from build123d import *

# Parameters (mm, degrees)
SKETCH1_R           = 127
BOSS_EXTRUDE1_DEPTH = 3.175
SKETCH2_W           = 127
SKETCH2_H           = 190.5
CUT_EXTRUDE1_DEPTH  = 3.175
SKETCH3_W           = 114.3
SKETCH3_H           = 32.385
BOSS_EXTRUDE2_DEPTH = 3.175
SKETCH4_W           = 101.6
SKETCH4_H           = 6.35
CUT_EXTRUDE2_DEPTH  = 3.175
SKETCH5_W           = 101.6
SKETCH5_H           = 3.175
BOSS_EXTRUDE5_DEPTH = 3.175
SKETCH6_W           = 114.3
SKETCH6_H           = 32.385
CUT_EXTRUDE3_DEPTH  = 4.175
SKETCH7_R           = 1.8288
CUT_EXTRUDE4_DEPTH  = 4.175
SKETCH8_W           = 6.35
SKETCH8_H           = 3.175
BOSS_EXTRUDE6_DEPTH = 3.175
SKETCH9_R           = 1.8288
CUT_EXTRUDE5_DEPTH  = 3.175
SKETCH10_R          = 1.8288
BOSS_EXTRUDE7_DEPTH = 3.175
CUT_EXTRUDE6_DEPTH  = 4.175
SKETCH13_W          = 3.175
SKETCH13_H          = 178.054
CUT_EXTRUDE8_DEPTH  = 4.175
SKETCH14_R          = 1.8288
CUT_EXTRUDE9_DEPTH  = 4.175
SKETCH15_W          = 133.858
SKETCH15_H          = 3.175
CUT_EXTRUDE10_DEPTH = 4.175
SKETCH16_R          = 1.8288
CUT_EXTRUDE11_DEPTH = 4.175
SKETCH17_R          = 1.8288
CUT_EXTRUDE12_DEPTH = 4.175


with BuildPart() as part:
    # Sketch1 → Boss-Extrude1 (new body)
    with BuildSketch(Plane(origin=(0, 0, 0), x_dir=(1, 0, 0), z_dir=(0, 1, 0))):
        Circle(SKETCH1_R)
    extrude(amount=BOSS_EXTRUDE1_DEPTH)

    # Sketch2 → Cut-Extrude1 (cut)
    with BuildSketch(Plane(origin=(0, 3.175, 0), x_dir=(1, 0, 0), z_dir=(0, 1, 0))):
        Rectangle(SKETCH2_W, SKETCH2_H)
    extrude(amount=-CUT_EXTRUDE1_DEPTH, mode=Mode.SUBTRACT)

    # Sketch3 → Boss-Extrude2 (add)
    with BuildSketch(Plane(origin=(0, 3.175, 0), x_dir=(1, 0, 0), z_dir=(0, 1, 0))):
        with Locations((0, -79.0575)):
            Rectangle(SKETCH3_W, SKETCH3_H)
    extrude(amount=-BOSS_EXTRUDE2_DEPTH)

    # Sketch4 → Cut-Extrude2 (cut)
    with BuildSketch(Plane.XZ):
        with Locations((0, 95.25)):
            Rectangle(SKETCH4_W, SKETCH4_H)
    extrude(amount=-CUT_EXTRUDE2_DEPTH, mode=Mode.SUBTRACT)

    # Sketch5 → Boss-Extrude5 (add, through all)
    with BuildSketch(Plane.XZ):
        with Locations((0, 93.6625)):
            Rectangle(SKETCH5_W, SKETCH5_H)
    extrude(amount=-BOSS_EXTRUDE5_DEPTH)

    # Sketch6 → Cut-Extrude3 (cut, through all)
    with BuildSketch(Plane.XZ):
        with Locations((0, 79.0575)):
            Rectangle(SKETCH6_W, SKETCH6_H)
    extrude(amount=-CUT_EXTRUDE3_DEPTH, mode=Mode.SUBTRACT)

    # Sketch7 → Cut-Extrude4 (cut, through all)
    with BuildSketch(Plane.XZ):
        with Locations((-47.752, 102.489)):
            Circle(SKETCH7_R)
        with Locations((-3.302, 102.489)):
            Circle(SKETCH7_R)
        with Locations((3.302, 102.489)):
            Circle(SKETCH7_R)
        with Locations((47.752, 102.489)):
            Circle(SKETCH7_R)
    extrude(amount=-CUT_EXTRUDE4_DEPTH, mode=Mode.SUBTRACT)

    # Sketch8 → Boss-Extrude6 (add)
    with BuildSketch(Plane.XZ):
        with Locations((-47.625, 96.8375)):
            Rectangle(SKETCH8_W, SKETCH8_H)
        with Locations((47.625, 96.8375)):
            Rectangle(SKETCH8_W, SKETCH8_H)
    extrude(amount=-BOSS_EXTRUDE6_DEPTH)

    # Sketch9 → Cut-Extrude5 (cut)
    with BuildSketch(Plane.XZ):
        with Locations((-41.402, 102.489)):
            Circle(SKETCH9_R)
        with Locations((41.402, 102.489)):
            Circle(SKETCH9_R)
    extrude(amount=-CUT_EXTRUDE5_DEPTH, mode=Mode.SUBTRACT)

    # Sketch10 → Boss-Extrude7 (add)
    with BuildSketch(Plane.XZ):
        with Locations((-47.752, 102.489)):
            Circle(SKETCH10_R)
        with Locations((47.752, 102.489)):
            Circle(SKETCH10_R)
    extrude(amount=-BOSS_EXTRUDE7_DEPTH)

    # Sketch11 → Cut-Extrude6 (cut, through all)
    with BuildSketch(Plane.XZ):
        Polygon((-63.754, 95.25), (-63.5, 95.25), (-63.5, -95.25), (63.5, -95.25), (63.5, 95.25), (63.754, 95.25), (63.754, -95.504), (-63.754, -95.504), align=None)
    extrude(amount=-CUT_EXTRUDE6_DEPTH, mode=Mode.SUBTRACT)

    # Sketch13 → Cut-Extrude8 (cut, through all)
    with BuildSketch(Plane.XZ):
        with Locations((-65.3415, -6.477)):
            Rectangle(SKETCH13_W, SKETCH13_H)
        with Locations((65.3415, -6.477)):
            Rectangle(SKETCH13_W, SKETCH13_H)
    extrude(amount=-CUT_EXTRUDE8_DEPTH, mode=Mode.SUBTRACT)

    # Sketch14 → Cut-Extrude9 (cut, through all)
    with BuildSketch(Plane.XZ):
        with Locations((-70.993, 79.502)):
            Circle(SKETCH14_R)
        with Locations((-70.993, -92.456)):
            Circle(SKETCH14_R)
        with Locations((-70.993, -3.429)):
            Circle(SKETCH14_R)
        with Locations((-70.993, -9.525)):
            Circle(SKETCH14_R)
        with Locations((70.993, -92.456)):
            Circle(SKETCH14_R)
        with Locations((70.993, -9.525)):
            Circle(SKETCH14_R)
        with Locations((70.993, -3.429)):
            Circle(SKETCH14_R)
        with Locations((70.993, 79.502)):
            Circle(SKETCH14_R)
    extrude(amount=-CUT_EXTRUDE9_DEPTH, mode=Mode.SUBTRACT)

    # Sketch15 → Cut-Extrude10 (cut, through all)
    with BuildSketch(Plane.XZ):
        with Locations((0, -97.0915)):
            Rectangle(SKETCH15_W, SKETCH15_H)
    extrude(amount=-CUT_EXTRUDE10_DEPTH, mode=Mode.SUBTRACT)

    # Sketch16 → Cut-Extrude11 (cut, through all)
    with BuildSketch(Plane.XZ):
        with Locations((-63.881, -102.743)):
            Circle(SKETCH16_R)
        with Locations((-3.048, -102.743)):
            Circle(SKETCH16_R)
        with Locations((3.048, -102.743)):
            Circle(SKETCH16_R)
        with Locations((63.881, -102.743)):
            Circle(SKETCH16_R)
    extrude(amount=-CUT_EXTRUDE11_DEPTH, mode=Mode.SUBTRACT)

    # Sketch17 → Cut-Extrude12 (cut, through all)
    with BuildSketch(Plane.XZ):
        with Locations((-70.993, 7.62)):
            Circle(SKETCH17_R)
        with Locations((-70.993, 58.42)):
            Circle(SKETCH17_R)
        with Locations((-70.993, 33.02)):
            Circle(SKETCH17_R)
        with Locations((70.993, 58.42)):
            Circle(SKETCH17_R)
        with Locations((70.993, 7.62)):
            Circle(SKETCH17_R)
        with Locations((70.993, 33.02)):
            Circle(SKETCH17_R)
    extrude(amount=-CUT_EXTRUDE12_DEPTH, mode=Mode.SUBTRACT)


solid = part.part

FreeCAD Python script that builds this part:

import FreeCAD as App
import Part
import Sketcher
Q = App.Units.Quantity


def add_polygon(sketch, points):
    """Adds a closed chain of lines whose ends are joined by coincident constraints."""
    first, n = sketch.GeometryCount, len(points)
    for a, b in zip(points, points[1:] + points[:1]):
        sketch.addGeometry(Part.LineSegment(App.Vector(*a, 0), App.Vector(*b, 0)), False)
    for i in range(n):
        sketch.addConstraint(Sketcher.Constraint("Coincident", first + i, 2, first + (i + 1) % n, 1))

doc = App.newDocument("Part")
params = doc.addObject("Spreadsheet::Sheet", "Params")
for row, (alias, value) in enumerate([
    ("sketch1_diameter", "10 in"),
    ("pad1_length", "0.125 in"),
    ("sketch2_width", "5 in"),
    ("sketch2_height", "7.5 in"),
    ("pocket1_length", "0.125 in"),
    ("sketch3_width", "4.5 in"),
    ("sketch3_height", "1.275 in"),
    ("pad2_length", "0.125 in"),
    ("sketch4_width", "4 in"),
    ("sketch4_height", "0.25 in"),
    ("pocket2_length", "0.125 in"),
    ("sketch5_width", "4 in"),
    ("sketch5_height", "0.125 in"),
    ("pad3_length", "0.125 in"),
    ("sketch6_width", "4.5 in"),
    ("sketch6_height", "1.275 in"),
    ("sketch7_diameter", "0.144 in"),
    ("sketch8_width", "0.25 in"),
    ("sketch8_height", "0.125 in"),
    ("pad4_length", "0.125 in"),
    ("sketch9_diameter", "0.144 in"),
    ("pocket5_length", "0.125 in"),
    ("sketch10_diameter", "0.144 in"),
    ("pad5_length", "0.125 in"),
    ("sketch11_width", "5 in"),
    ("sketch11_height", "7.5 in"),
    ("sketch11_width2", "0.01 in"),
    ("sketch11_height2", "7.51 in"),
    ("sketch12_height", "7.01 in"),
    ("sketch12_width", "0.125 in"),
    ("sketch13_diameter", "0.144 in"),
    ("sketch14_width", "5.27 in"),
    ("sketch14_height", "0.125 in"),
    ("sketch15_diameter", "0.144 in"),
    ("sketch16_diameter", "0.144 in"),
], start=1):
    params.set(f"A{row}", alias)
    params.set(f"B{row}", "=" + value)
    params.setAlias(f"B{row}", alias)

body = doc.addObject("PartDesign::Body", "Body")

# Sketch on XZ plane
sketch1 = doc.addObject("Sketcher::SketchObject", "Sketch")
body.addObject(sketch1)
sketch1.AttachmentSupport = (doc.XZ_Plane, [""])
sketch1.MapMode = "FlatFace"
sketch1.addGeometry(Part.Circle(App.Vector(0, 0, 0), App.Vector(0, 0, 1), 127), False)
sketch1.addConstraint(Sketcher.Constraint("Coincident", 0, 3, -1, 1))
sketch1.addConstraint(Sketcher.Constraint("Diameter", 0, Q("10 in")))
sketch1.setExpression("Constraints[1]", "Params.sketch1_diameter")
pad1 = doc.addObject("PartDesign::Pad", "Pad")
body.addObject(pad1)
pad1.Profile = sketch1
pad1.setExpression("Length", "Params.pad1_length")
pad1.Reversed = True

# Sketch on XZ plane
sketch2 = doc.addObject("Sketcher::SketchObject", "Sketch001")
body.addObject(sketch2)
sketch2.AttachmentSupport = (doc.XZ_Plane, [""])
sketch2.MapMode = "FlatFace"
sketch2.AttachmentOffset = App.Placement(App.Vector(0, 0, -0.125 * 25.4), App.Rotation())
add_polygon(sketch2, [(-64, -95), (-64, 95), (64, 95), (64, -95)])  # lines 0-3
sketch2.addConstraint(Sketcher.Constraint("Vertical", 0))
sketch2.addConstraint(Sketcher.Constraint("Horizontal", 1))
sketch2.addConstraint(Sketcher.Constraint("Vertical", 2))
sketch2.addConstraint(Sketcher.Constraint("Horizontal", 3))
sketch2.addConstraint(Sketcher.Constraint("Symmetric", 0, 2, 2, 2, -1, 1))
sketch2.addConstraint(Sketcher.Constraint("DistanceX", 1, 1, 1, 2, Q("5 in")))
sketch2.addConstraint(Sketcher.Constraint("DistanceY", 0, 1, 0, 2, Q("7.5 in")))
sketch2.setExpression("Constraints[9]", "Params.sketch2_width")
sketch2.setExpression("Constraints[10]", "Params.sketch2_height")
pocket1 = doc.addObject("PartDesign::Pocket", "Pocket")
body.addObject(pocket1)
pocket1.Profile = sketch2
pocket1.setExpression("Length", "Params.pocket1_length")
pocket1.Reversed = True

# Sketch on XZ plane
sketch3 = doc.addObject("Sketcher::SketchObject", "Sketch002")
body.addObject(sketch3)
sketch3.AttachmentSupport = (doc.XZ_Plane, [""])
sketch3.MapMode = "FlatFace"
sketch3.AttachmentOffset = App.Placement(App.Vector(0, 0, -0.125 * 25.4), App.Rotation())
add_polygon(sketch3, [(-57, 63), (-57, 95), (57, 95), (57, 63)])  # lines 0-3
sketch3.addConstraint(Sketcher.Constraint("Vertical", 0))
sketch3.addConstraint(Sketcher.Constraint("Horizontal", 1))
sketch3.addConstraint(Sketcher.Constraint("Vertical", 2))
sketch3.addConstraint(Sketcher.Constraint("Horizontal", 3))
sketch3.addConstraint(Sketcher.Constraint("DistanceX", 1, 1, 1, 2, Q("4.5 in")))
sketch3.addConstraint(Sketcher.Constraint("DistanceY", 0, 1, 0, 2, Q("1.275 in")))
sketch3.addConstraint(Sketcher.Constraint("DistanceX", 0, 2, -1, 1, Q("2.25 in")))
sketch3.addConstraint(Sketcher.Constraint("DistanceY", -1, 1, 0, 2, Q("3.75 in")))
sketch3.setExpression("Constraints[8]", "Params.sketch3_width")
sketch3.setExpression("Constraints[9]", "Params.sketch3_height")
pad2 = doc.addObject("PartDesign::Pad", "Pad001")
body.addObject(pad2)
pad2.Profile = sketch3
pad2.setExpression("Length", "Params.pad2_length")

# Sketch on XZ plane
sketch4 = doc.addObject("Sketcher::SketchObject", "Sketch003")
body.addObject(sketch4)
sketch4.AttachmentSupport = (doc.XZ_Plane, [""])
sketch4.MapMode = "FlatFace"
add_polygon(sketch4, [(-51, 98), (-51, 92), (51, 92), (51, 98)])  # lines 0-3
sketch4.addConstraint(Sketcher.Constraint("Vertical", 0))
sketch4.addConstraint(Sketcher.Constraint("Horizontal", 1))
sketch4.addConstraint(Sketcher.Constraint("Vertical", 2))
sketch4.addConstraint(Sketcher.Constraint("Horizontal", 3))
sketch4.addConstraint(Sketcher.Constraint("DistanceX", 1, 1, 1, 2, Q("4 in")))
sketch4.addConstraint(Sketcher.Constraint("DistanceX", 0, 2, -1, 1, Q("2 in")))
sketch4.addConstraint(Sketcher.Constraint("DistanceY", 0, 2, 0, 1, Q("0.25 in")))
sketch4.addConstraint(Sketcher.Constraint("DistanceY", -1, 1, 0, 2, Q("3.625 in")))
sketch4.setExpression("Constraints[8]", "Params.sketch4_width")
sketch4.setExpression("Constraints[10]", "Params.sketch4_height")
pocket2 = doc.addObject("PartDesign::Pocket", "Pocket001")
body.addObject(pocket2)
pocket2.Profile = sketch4
pocket2.setExpression("Length", "Params.pocket2_length")

# Sketch on XZ plane
sketch5 = doc.addObject("Sketcher::SketchObject", "Sketch004")
body.addObject(sketch5)
sketch5.AttachmentSupport = (doc.XZ_Plane, [""])
sketch5.MapMode = "FlatFace"
add_polygon(sketch5, [(-50.8, 95.2), (-50.8, 92.1), (50.8, 92.1), (50.8, 95.2)])  # lines 0-3
sketch5.addConstraint(Sketcher.Constraint("Vertical", 0))
sketch5.addConstraint(Sketcher.Constraint("Horizontal", 1))
sketch5.addConstraint(Sketcher.Constraint("Vertical", 2))
sketch5.addConstraint(Sketcher.Constraint("Horizontal", 3))
sketch5.addConstraint(Sketcher.Constraint("DistanceX", 1, 1, 1, 2, Q("4 in")))
sketch5.addConstraint(Sketcher.Constraint("DistanceX", 0, 2, -1, 1, Q("2 in")))
sketch5.addConstraint(Sketcher.Constraint("DistanceY", 0, 2, 0, 1, Q("0.125 in")))
sketch5.addConstraint(Sketcher.Constraint("DistanceY", -1, 1, 2, 2, Q("3.75 in")))
sketch5.setExpression("Constraints[8]", "Params.sketch5_width")
sketch5.setExpression("Constraints[10]", "Params.sketch5_height")
pad3 = doc.addObject("PartDesign::Pad", "Pad002")
body.addObject(pad3)
pad3.Profile = sketch5
pad3.setExpression("Length", "Params.pad3_length")
pad3.Reversed = True

# Sketch on XZ plane
sketch6 = doc.addObject("Sketcher::SketchObject", "Sketch005")
body.addObject(sketch6)
sketch6.AttachmentSupport = (doc.XZ_Plane, [""])
sketch6.MapMode = "FlatFace"
add_polygon(sketch6, [(-57, 95), (-57, 63), (57, 63), (57, 95)])  # lines 0-3
sketch6.addConstraint(Sketcher.Constraint("Vertical", 0))
sketch6.addConstraint(Sketcher.Constraint("Horizontal", 1))
sketch6.addConstraint(Sketcher.Constraint("Vertical", 2))
sketch6.addConstraint(Sketcher.Constraint("Horizontal", 3))
sketch6.addConstraint(Sketcher.Constraint("DistanceX", 1, 1, 1, 2, Q("4.5 in")))
sketch6.addConstraint(Sketcher.Constraint("DistanceY", 0, 2, 0, 1, Q("1.275 in")))
sketch6.addConstraint(Sketcher.Constraint("DistanceX", 0, 2, -1, 1, Q("2.25 in")))
sketch6.addConstraint(Sketcher.Constraint("DistanceY", -1, 1, 2, 2, Q("3.75 in")))
sketch6.setExpression("Constraints[8]", "Params.sketch6_width")
sketch6.setExpression("Constraints[9]", "Params.sketch6_height")
pocket3 = doc.addObject("PartDesign::Pocket", "Pocket002")
body.addObject(pocket3)
pocket3.Profile = sketch6
pocket3.Type = "ThroughAll"

# Sketch on XZ plane
sketch7 = doc.addObject("Sketcher::SketchObject", "Sketch006")
body.addObject(sketch7)
sketch7.AttachmentSupport = (doc.XZ_Plane, [""])
sketch7.MapMode = "FlatFace"
sketch7.addGeometry(Part.Circle(App.Vector(-47.8, 102.5, 0), App.Vector(0, 0, 1), 1.8), False)
sketch7.addGeometry(Part.Circle(App.Vector(-3.3, 102.5, 0), App.Vector(0, 0, 1), 1.8), False)
sketch7.addGeometry(Part.Circle(App.Vector(3.3, 102.5, 0), App.Vector(0, 0, 1), 1.8), False)
sketch7.addGeometry(Part.Circle(App.Vector(47.8, 102.5, 0), App.Vector(0, 0, 1), 1.8), False)
sketch7.addConstraint(Sketcher.Constraint("Equal", 0, 1))
sketch7.addConstraint(Sketcher.Constraint("Equal", 1, 2))
sketch7.addConstraint(Sketcher.Constraint("Equal", 2, 3))
sketch7.addConstraint(Sketcher.Constraint("Symmetric", 1, 3, 2, 3, -2))
sketch7.addConstraint(Sketcher.Constraint("Symmetric", 0, 3, 3, 3, -2))
sketch7.addConstraint(Sketcher.Constraint("Horizontal", 0, 3, 1, 3))
sketch7.addConstraint(Sketcher.Constraint("Diameter", 0, Q("0.144 in")))
sketch7.addConstraint(Sketcher.Constraint("DistanceX", 0, 3, -1, 1, Q("1.88 in")))
sketch7.addConstraint(Sketcher.Constraint("DistanceX", 1, 3, -1, 1, Q("0.13 in")))
sketch7.addConstraint(Sketcher.Constraint("DistanceY", -1, 1, 0, 3, Q("4.035 in")))
sketch7.setExpression("Constraints[6]", "Params.sketch7_diameter")
pocket4 = doc.addObject("PartDesign::Pocket", "Pocket003")
body.addObject(pocket4)
pocket4.Profile = sketch7
pocket4.Type = "ThroughAll"

# Sketch on XZ plane
sketch8 = doc.addObject("Sketcher::SketchObject", "Sketch007")
body.addObject(sketch8)
sketch8.AttachmentSupport = (doc.XZ_Plane, [""])
sketch8.MapMode = "FlatFace"
add_polygon(sketch8, [(-50.8, 98.4), (-50.8, 95.2), (-44.5, 95.2), (-44.5, 98.4)])  # lines 0-3
add_polygon(sketch8, [(44.5, 98.4), (44.5, 95.2), (50.8, 95.2), (50.8, 98.4)])  # lines 4-7
sketch8.addConstraint(Sketcher.Constraint("Vertical", 0))
sketch8.addConstraint(Sketcher.Constraint("Horizontal", 1))
sketch8.addConstraint(Sketcher.Constraint("Vertical", 2))
sketch8.addConstraint(Sketcher.Constraint("Horizontal", 3))
sketch8.addConstraint(Sketcher.Constraint("Vertical", 4))
sketch8.addConstraint(Sketcher.Constraint("Horizontal", 5))
sketch8.addConstraint(Sketcher.Constraint("Vertical", 6))
sketch8.addConstraint(Sketcher.Constraint("Horizontal", 7))
sketch8.addConstraint(Sketcher.Constraint("Symmetric", 1, 2, 4, 2, -2))
sketch8.addConstraint(Sketcher.Constraint("Symmetric", 3, 2, 6, 2, -2))
sketch8.addConstraint(Sketcher.Constraint("DistanceX", 0, 2, -1, 1, Q("2 in")))
sketch8.addConstraint(Sketcher.Constraint("DistanceX", 1, 1, 1, 2, Q("0.25 in")))
sketch8.addConstraint(Sketcher.Constraint("DistanceY", 0, 2, 0, 1, Q("0.125 in")))
sketch8.addConstraint(Sketcher.Constraint("DistanceY", -1, 1, 0, 2, Q("3.75 in")))
sketch8.setExpression("Constraints[19]", "Params.sketch8_width")
sketch8.setExpression("Constraints[20]", "Params.sketch8_height")
pad4 = doc.addObject("PartDesign::Pad", "Pad003")
body.addObject(pad4)
pad4.Profile = sketch8
pad4.setExpression("Length", "Params.pad4_length")
pad4.Reversed = True

# Sketch on XZ plane
sketch9 = doc.addObject("Sketcher::SketchObject", "Sketch008")
body.addObject(sketch9)
sketch9.AttachmentSupport = (doc.XZ_Plane, [""])
sketch9.MapMode = "FlatFace"
sketch9.addGeometry(Part.Circle(App.Vector(-41.4, 102.5, 0), App.Vector(0, 0, 1), 1.8), False)
sketch9.addGeometry(Part.Circle(App.Vector(41.4, 102.5, 0), App.Vector(0, 0, 1), 1.8), False)
sketch9.addConstraint(Sketcher.Constraint("Equal", 0, 1))
sketch9.addConstraint(Sketcher.Constraint("Symmetric", 0, 3, 1, 3, -2))
sketch9.addConstraint(Sketcher.Constraint("Diameter", 0, Q("0.144 in")))
sketch9.addConstraint(Sketcher.Constraint("DistanceX", 0, 3, -1, 1, Q("1.63 in")))
sketch9.addConstraint(Sketcher.Constraint("DistanceY", -1, 1, 0, 3, Q("4.035 in")))
sketch9.setExpression("Constraints[2]", "Params.sketch9_diameter")
pocket5 = doc.addObject("PartDesign::Pocket", "Pocket004")
body.addObject(pocket5)
pocket5.Profile = sketch9
pocket5.setExpression("Length", "Params.pocket5_length")

# Sketch on XZ plane
sketch10 = doc.addObject("Sketcher::SketchObject", "Sketch009")
body.addObject(sketch10)
sketch10.AttachmentSupport = (doc.XZ_Plane, [""])
sketch10.MapMode = "FlatFace"
sketch10.addGeometry(Part.Circle(App.Vector(-47.8, 102.5, 0), App.Vector(0, 0, 1), 1.8), False)
sketch10.addGeometry(Part.Circle(App.Vector(47.8, 102.5, 0), App.Vector(0, 0, 1), 1.8), False)
sketch10.addConstraint(Sketcher.Constraint("Equal", 0, 1))
sketch10.addConstraint(Sketcher.Constraint("Symmetric", 0, 3, 1, 3, -2))
sketch10.addConstraint(Sketcher.Constraint("Diameter", 0, Q("0.144 in")))
sketch10.addConstraint(Sketcher.Constraint("DistanceX", 0, 3, -1, 1, Q("1.88 in")))
sketch10.addConstraint(Sketcher.Constraint("DistanceY", -1, 1, 0, 3, Q("4.035 in")))
sketch10.setExpression("Constraints[2]", "Params.sketch10_diameter")
pad5 = doc.addObject("PartDesign::Pad", "Pad004")
body.addObject(pad5)
pad5.Profile = sketch10
pad5.setExpression("Length", "Params.pad5_length")
pad5.Reversed = True

# Sketch on XZ plane
sketch11 = doc.addObject("Sketcher::SketchObject", "Sketch010")
body.addObject(sketch11)
sketch11.AttachmentSupport = (doc.XZ_Plane, [""])
sketch11.MapMode = "FlatFace"
add_polygon(sketch11, [(-63.5, 95.25), (-63.75, 95.25), (-63.75, -95.5), (63.75, -95.5), (63.75, 95.25), (63.5, 95.25), (63.5, -95.25), (-63.5, -95.25)])  # lines 0-7
sketch11.addConstraint(Sketcher.Constraint("Horizontal", 0))
sketch11.addConstraint(Sketcher.Constraint("Vertical", 1))
sketch11.addConstraint(Sketcher.Constraint("Horizontal", 2))
sketch11.addConstraint(Sketcher.Constraint("Vertical", 3))
sketch11.addConstraint(Sketcher.Constraint("Horizontal", 4))
sketch11.addConstraint(Sketcher.Constraint("Vertical", 5))
sketch11.addConstraint(Sketcher.Constraint("Horizontal", 6))
sketch11.addConstraint(Sketcher.Constraint("Vertical", 7))
sketch11.addConstraint(Sketcher.Constraint("Symmetric", 4, 2, 6, 2, -1, 1))
sketch11.addConstraint(Sketcher.Constraint("Symmetric", 0, 2, 3, 2, -2))
sketch11.addConstraint(Sketcher.Constraint("DistanceX", 6, 2, 6, 1, Q("5 in")))
sketch11.addConstraint(Sketcher.Constraint("DistanceY", 5, 2, 5, 1, Q("7.5 in")))
sketch11.addConstraint(Sketcher.Constraint("DistanceX", 0, 2, 0, 1, Q("0.01 in")))
sketch11.addConstraint(Sketcher.Constraint("DistanceY", 1, 2, 1, 1, Q("7.51 in")))
sketch11.setExpression("Constraints[18]", "Params.sketch11_width")
sketch11.setExpression("Constraints[19]", "Params.sketch11_height")
sketch11.setExpression("Constraints[20]", "Params.sketch11_width2")
sketch11.setExpression("Constraints[21]", "Params.sketch11_height2")
pocket6 = doc.addObject("PartDesign::Pocket", "Pocket005")
body.addObject(pocket6)
pocket6.Profile = sketch11
pocket6.Type = "ThroughAll"

# Sketch on XZ plane
sketch12 = doc.addObject("Sketcher::SketchObject", "Sketch011")
body.addObject(sketch12)
sketch12.AttachmentSupport = (doc.XZ_Plane, [""])
sketch12.MapMode = "FlatFace"
add_polygon(sketch12, [(-66.9, 82.5), (-66.9, -95.5), (-63.8, -95.5), (-63.8, 82.5)])  # lines 0-3
add_polygon(sketch12, [(63.8, 82.5), (63.8, -95.5), (66.9, -95.5), (66.9, 82.5)])  # lines 4-7
sketch12.addConstraint(Sketcher.Constraint("Vertical", 0))
sketch12.addConstraint(Sketcher.Constraint("Horizontal", 1))
sketch12.addConstraint(Sketcher.Constraint("Vertical", 2))
sketch12.addConstraint(Sketcher.Constraint("Horizontal", 3))
sketch12.addConstraint(Sketcher.Constraint("Vertical", 4))
sketch12.addConstraint(Sketcher.Constraint("Horizontal", 5))
sketch12.addConstraint(Sketcher.Constraint("Vertical", 6))
sketch12.addConstraint(Sketcher.Constraint("Horizontal", 7))
sketch12.addConstraint(Sketcher.Constraint("Symmetric", 1, 2, 4, 2, -2))
sketch12.addConstraint(Sketcher.Constraint("Symmetric", 3, 2, 6, 2, -2))
sketch12.addConstraint(Sketcher.Constraint("DistanceY", 0, 2, 0, 1, Q("7.01 in")))
sketch12.addConstraint(Sketcher.Constraint("DistanceX", 1, 1, 1, 2, Q("0.125 in")))
sketch12.addConstraint(Sketcher.Constraint("DistanceY", 0, 2, -1, 1, Q("3.76 in")))
sketch12.addConstraint(Sketcher.Constraint("DistanceX", 1, 2, -1, 1, Q("2.51 in")))
sketch12.setExpression("Constraints[18]", "Params.sketch12_height")
sketch12.setExpression("Constraints[19]", "Params.sketch12_width")
pocket7 = doc.addObject("PartDesign::Pocket", "Pocket006")
body.addObject(pocket7)
pocket7.Profile = sketch12
pocket7.Type = "ThroughAll"

# Sketch on XZ plane
sketch13 = doc.addObject("Sketcher::SketchObject", "Sketch012")
body.addObject(sketch13)
sketch13.AttachmentSupport = (doc.XZ_Plane, [""])
sketch13.MapMode = "FlatFace"
sketch13.addGeometry(Part.Circle(App.Vector(-71, 79.5, 0), App.Vector(0, 0, 1), 1.8), False)
sketch13.addGeometry(Part.Circle(App.Vector(-71, -92.5, 0), App.Vector(0, 0, 1), 1.8), False)
sketch13.addGeometry(Part.Circle(App.Vector(-71, -3.4, 0), App.Vector(0, 0, 1), 1.8), False)
sketch13.addGeometry(Part.Circle(App.Vector(-71, -9.5, 0), App.Vector(0, 0, 1), 1.8), False)
sketch13.addGeometry(Part.Circle(App.Vector(71, -92.5, 0), App.Vector(0, 0, 1), 1.8), False)
sketch13.addGeometry(Part.Circle(App.Vector(71, -9.5, 0), App.Vector(0, 0, 1), 1.8), False)
sketch13.addGeometry(Part.Circle(App.Vector(71, -3.4, 0), App.Vector(0, 0, 1), 1.8), False)
sketch13.addGeometry(Part.Circle(App.Vector(71, 79.5, 0), App.Vector(0, 0, 1), 1.8), False)
sketch13.addConstraint(Sketcher.Constraint("Equal", 0, 1))
sketch13.addConstraint(Sketcher.Constraint("Equal", 1, 2))
sketch13.addConstraint(Sketcher.Constraint("Equal", 2, 3))
sketch13.addConstraint(Sketcher.Constraint("Equal", 3, 4))
sketch13.addConstraint(Sketcher.Constraint("Equal", 4, 5))
sketch13.addConstraint(Sketcher.Constraint("Equal", 5, 6))
sketch13.addConstraint(Sketcher.Constraint("Equal", 6, 7))
sketch13.addConstraint(Sketcher.Constraint("Symmetric", 1, 3, 4, 3, -2))
sketch13.addConstraint(Sketcher.Constraint("Symmetric", 3, 3, 5, 3, -2))
sketch13.addConstraint(Sketcher.Constraint("Symmetric", 2, 3, 6, 3, -2))
sketch13.addConstraint(Sketcher.Constraint("Symmetric", 0, 3, 7, 3, -2))
sketch13.addConstraint(Sketcher.Constraint("Vertical", 0, 3, 1, 3))
sketch13.addConstraint(Sketcher.Constraint("Vertical", 1, 3, 2, 3))
sketch13.addConstraint(Sketcher.Constraint("Vertical", 2, 3, 3, 3))
sketch13.addConstraint(Sketcher.Constraint("Diameter", 0, Q("0.144 in")))
sketch13.addConstraint(Sketcher.Constraint("DistanceY", -1, 1, 0, 3, Q("3.13 in")))
sketch13.addConstraint(Sketcher.Constraint("DistanceY", 1, 3, -1, 1, Q("3.64 in")))
sketch13.addConstraint(Sketcher.Constraint("DistanceY", 3, 3, 2, 3, Q("0.24 in")))
sketch13.addConstraint(Sketcher.Constraint("DistanceX", 1, 3, 4, 3, Q("5.59 in")))
sketch13.addConstraint(Sketcher.Constraint("DistanceY", 2, 3, -1, 1, Q("0.135 in")))
sketch13.setExpression("Constraints[14]", "Params.sketch13_diameter")
pocket8 = doc.addObject("PartDesign::Pocket", "Pocket007")
body.addObject(pocket8)
pocket8.Profile = sketch13
pocket8.Type = "ThroughAll"

# Sketch on XZ plane
sketch14 = doc.addObject("Sketcher::SketchObject", "Sketch013")
body.addObject(sketch14)
sketch14.AttachmentSupport = (doc.XZ_Plane, [""])
sketch14.MapMode = "FlatFace"
add_polygon(sketch14, [(-66.9, -95.5), (-66.9, -98.7), (66.9, -98.7), (66.9, -95.5)])  # lines 0-3
sketch14.addConstraint(Sketcher.Constraint("Vertical", 0))
sketch14.addConstraint(Sketcher.Constraint("Horizontal", 1))
sketch14.addConstraint(Sketcher.Constraint("Vertical", 2))
sketch14.addConstraint(Sketcher.Constraint("Horizontal", 3))
sketch14.addConstraint(Sketcher.Constraint("DistanceX", 1, 1, 1, 2, Q("5.27 in")))
sketch14.addConstraint(Sketcher.Constraint("DistanceY", 0, 2, 0, 1, Q("0.125 in")))
sketch14.addConstraint(Sketcher.Constraint("DistanceY", 2, 2, -1, 1, Q("3.76 in")))
sketch14.addConstraint(Sketcher.Constraint("DistanceX", 0, 2, -1, 1, Q("2.635 in")))
sketch14.setExpression("Constraints[8]", "Params.sketch14_width")
sketch14.setExpression("Constraints[9]", "Params.sketch14_height")
pocket9 = doc.addObject("PartDesign::Pocket", "Pocket008")
body.addObject(pocket9)
pocket9.Profile = sketch14
pocket9.Type = "ThroughAll"

# Sketch on XZ plane
sketch15 = doc.addObject("Sketcher::SketchObject", "Sketch014")
body.addObject(sketch15)
sketch15.AttachmentSupport = (doc.XZ_Plane, [""])
sketch15.MapMode = "FlatFace"
sketch15.addGeometry(Part.Circle(App.Vector(-63.9, -102.7, 0), App.Vector(0, 0, 1), 1.8), False)
sketch15.addGeometry(Part.Circle(App.Vector(-3, -102.7, 0), App.Vector(0, 0, 1), 1.8), False)
sketch15.addGeometry(Part.Circle(App.Vector(3, -102.7, 0), App.Vector(0, 0, 1), 1.8), False)
sketch15.addGeometry(Part.Circle(App.Vector(63.9, -102.7, 0), App.Vector(0, 0, 1), 1.8), False)
sketch15.addConstraint(Sketcher.Constraint("Equal", 0, 1))
sketch15.addConstraint(Sketcher.Constraint("Equal", 1, 2))
sketch15.addConstraint(Sketcher.Constraint("Equal", 2, 3))
sketch15.addConstraint(Sketcher.Constraint("Symmetric", 1, 3, 2, 3, -2))
sketch15.addConstraint(Sketcher.Constraint("Symmetric", 0, 3, 3, 3, -2))
sketch15.addConstraint(Sketcher.Constraint("Horizontal", 0, 3, 1, 3))
sketch15.addConstraint(Sketcher.Constraint("Diameter", 0, Q("0.144 in")))
sketch15.addConstraint(Sketcher.Constraint("DistanceX", 1, 3, -1, 1, Q("0.12 in")))
sketch15.addConstraint(Sketcher.Constraint("DistanceX", 0, 3, 3, 3, Q("5.03 in")))
sketch15.addConstraint(Sketcher.Constraint("DistanceY", 0, 3, -1, 1, Q("4.045 in")))
sketch15.setExpression("Constraints[6]", "Params.sketch15_diameter")
pocket10 = doc.addObject("PartDesign::Pocket", "Pocket009")
body.addObject(pocket10)
pocket10.Profile = sketch15
pocket10.Type = "ThroughAll"

# Sketch on XZ plane
sketch16 = doc.addObject("Sketcher::SketchObject", "Sketch015")
body.addObject(sketch16)
sketch16.AttachmentSupport = (doc.XZ_Plane, [""])
sketch16.MapMode = "FlatFace"
sketch16.addGeometry(Part.Circle(App.Vector(-71, 7.6, 0), App.Vector(0, 0, 1), 1.8), False)
sketch16.addGeometry(Part.Circle(App.Vector(-71, 58.4, 0), App.Vector(0, 0, 1), 1.8), False)
sketch16.addGeometry(Part.Circle(App.Vector(-71, 33, 0), App.Vector(0, 0, 1), 1.8), False)
sketch16.addGeometry(Part.Circle(App.Vector(71, 58.4, 0), App.Vector(0, 0, 1), 1.8), False)
sketch16.addGeometry(Part.Circle(App.Vector(71, 7.6, 0), App.Vector(0, 0, 1), 1.8), False)
sketch16.addGeometry(Part.Circle(App.Vector(71, 33, 0), App.Vector(0, 0, 1), 1.8), False)
sketch16.addConstraint(Sketcher.Constraint("Equal", 0, 1))
sketch16.addConstraint(Sketcher.Constraint("Equal", 1, 2))
sketch16.addConstraint(Sketcher.Constraint("Equal", 2, 3))
sketch16.addConstraint(Sketcher.Constraint("Equal", 3, 4))
sketch16.addConstraint(Sketcher.Constraint("Equal", 4, 5))
sketch16.addConstraint(Sketcher.Constraint("Symmetric", 1, 3, 3, 3, -2))
sketch16.addConstraint(Sketcher.Constraint("Symmetric", 0, 3, 4, 3, -2))
sketch16.addConstraint(Sketcher.Constraint("Symmetric", 2, 3, 5, 3, -2))
sketch16.addConstraint(Sketcher.Constraint("Vertical", 0, 3, 1, 3))
sketch16.addConstraint(Sketcher.Constraint("Vertical", 1, 3, 2, 3))
sketch16.addConstraint(Sketcher.Constraint("Diameter", 0, Q("0.144 in")))
sketch16.addConstraint(Sketcher.Constraint("DistanceY", 0, 3, 1, 3, Q("2 in")))
sketch16.addConstraint(Sketcher.Constraint("DistanceY", 2, 3, 1, 3, Q("1 in")))
sketch16.addConstraint(Sketcher.Constraint("DistanceY", -1, 1, 0, 3, Q("0.3 in")))
sketch16.addConstraint(Sketcher.Constraint("DistanceX", 1, 3, 3, 3, Q("5.59 in")))
sketch16.setExpression("Constraints[10]", "Params.sketch16_diameter")
pocket11 = doc.addObject("PartDesign::Pocket", "Pocket010")
body.addObject(pocket11)
pocket11.Profile = sketch16
pocket11.Type = "ThroughAll"

doc.recompute()
